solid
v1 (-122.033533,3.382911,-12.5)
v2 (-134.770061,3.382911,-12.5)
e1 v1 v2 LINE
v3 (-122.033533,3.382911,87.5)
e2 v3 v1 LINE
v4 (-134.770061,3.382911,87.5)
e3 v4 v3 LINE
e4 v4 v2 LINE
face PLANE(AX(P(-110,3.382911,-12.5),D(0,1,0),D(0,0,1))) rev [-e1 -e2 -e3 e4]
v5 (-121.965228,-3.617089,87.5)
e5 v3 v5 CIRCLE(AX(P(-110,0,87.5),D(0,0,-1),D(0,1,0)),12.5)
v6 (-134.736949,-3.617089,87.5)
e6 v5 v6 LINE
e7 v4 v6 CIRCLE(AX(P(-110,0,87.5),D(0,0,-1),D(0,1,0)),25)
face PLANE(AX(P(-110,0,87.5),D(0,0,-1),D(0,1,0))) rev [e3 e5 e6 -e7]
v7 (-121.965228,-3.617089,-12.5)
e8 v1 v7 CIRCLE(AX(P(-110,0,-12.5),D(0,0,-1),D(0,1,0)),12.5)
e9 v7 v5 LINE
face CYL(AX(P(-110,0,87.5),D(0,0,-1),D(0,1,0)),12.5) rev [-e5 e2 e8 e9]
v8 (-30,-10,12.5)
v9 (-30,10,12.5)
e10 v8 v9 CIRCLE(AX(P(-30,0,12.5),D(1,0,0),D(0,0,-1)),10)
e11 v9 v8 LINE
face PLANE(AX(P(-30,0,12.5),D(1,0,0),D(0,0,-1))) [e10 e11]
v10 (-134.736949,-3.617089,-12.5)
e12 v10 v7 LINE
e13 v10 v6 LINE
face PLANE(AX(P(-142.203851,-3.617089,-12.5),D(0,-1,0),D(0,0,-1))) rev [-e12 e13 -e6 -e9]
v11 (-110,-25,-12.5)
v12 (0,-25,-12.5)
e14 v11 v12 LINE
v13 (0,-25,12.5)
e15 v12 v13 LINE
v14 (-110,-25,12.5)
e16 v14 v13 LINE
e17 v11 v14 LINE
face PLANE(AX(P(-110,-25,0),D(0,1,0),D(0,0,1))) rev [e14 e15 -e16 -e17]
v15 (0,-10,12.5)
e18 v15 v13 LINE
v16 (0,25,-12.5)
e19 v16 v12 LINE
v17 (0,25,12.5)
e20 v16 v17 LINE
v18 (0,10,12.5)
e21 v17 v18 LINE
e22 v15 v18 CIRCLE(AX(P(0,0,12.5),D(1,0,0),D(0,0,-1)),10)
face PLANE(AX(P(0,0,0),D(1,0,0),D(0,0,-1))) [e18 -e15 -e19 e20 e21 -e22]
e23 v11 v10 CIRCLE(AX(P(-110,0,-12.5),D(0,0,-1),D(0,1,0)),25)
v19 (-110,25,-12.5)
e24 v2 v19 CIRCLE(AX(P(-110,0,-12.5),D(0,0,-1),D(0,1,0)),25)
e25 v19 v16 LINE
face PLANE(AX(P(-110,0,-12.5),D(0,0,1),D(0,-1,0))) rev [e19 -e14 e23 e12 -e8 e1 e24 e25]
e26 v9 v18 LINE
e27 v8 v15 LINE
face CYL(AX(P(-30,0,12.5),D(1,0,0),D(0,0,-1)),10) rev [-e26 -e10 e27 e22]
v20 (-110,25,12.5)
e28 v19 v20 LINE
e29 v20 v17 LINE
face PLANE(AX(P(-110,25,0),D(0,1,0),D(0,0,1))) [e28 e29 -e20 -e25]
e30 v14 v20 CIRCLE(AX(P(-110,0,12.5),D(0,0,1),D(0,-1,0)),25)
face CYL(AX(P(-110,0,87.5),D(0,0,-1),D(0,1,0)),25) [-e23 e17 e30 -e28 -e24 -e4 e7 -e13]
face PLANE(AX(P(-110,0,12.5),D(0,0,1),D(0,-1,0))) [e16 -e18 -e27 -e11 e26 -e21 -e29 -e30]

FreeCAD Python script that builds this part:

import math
import FreeCAD as App
import Part
import Sketcher

V = App.Vector
Q = App.Units.Quantity


def add_polygon(sketch, points):
    """Adds a closed chain of lines whose ends are joined by coincident constraints."""
    first, n = sketch.GeometryCount, len(points)
    for a, b in zip(points, points[1:] + points[:1]):
        sketch.addGeometry(Part.LineSegment(App.Vector(*a, 0), App.Vector(*b, 0)), False)
    for i in range(n):
        sketch.addConstraint(Sketcher.Constraint("Coincident", first + i, 2, first + (i + 1) % n, 1))

doc = App.newDocument("Part")
body = doc.addObject("PartDesign::Body", "Body")

sketch1 = body.newObject("Sketcher::SketchObject", "Sketch")
sketch1.AttachmentSupport = (doc.getObject("YZ_Plane"), [""])
sketch1.MapMode = "FlatFace"
add_polygon(sketch1, [(-25, 12), (-25, -12), (25, -12), (25, 12)])
sketch1.addConstraint(Sketcher.Constraint("Vertical", 0))
sketch1.addConstraint(Sketcher.Constraint("Horizontal", 1))
sketch1.addConstraint(Sketcher.Constraint("Vertical", 2))
sketch1.addConstraint(Sketcher.Constraint("Horizontal", 3))
sketch1.addConstraint(Sketcher.Constraint("Symmetric", 0, 2, 2, 2, -1, 1))
sketch1.addConstraint(Sketcher.Constraint("DistanceX", 1, 1, 1, 2, Q("50 mm")))
sketch1.addConstraint(Sketcher.Constraint("DistanceY", 0, 2, 0, 1, Q("25 mm")))
pad1 = body.newObject("PartDesign::Pad", "Pad")
pad1.Profile = sketch1
pad1.Length = 110
pad1.Reversed = True

sketch2 = body.newObject("Sketcher::SketchObject", "Sketch001")
sketch2.AttachmentSupport = (doc.getObject("YZ_Plane"), [""])
sketch2.MapMode = "FlatFace"
sketch2.addGeometry(Part.LineSegment(V(10, 12, 0), V(-10, 12, 0)), False)
sketch2.addGeometry(Part.ArcOfCircle(Part.Circle(V(0, 12, 0), V(0, 0, 1), 10), math.radians(180), math.radians(360)), False)
sketch2.addConstraint(Sketcher.Constraint("Coincident", 0, 1, 1, 2))
sketch2.addConstraint(Sketcher.Constraint("Coincident", 1, 1, 0, 2))
sketch2.addConstraint(Sketcher.Constraint("Horizontal", 0))
sketch2.addConstraint(Sketcher.Constraint("PointOnObject", 1, 3, -2))
sketch2.addConstraint(Sketcher.Constraint("Horizontal", 1, 3, 0, 1))
sketch2.addConstraint(Sketcher.Constraint("Radius", 1, Q("10 mm")))
sketch2.addConstraint(Sketcher.Constraint("DistanceY", -1, 1, 1, 3, Q("12.5 mm")))
pocket1 = body.newObject("PartDesign::Pocket", "Pocket")
pocket1.Profile = sketch2
pocket1.Type = "TwoLengths"
pocket1.Length = 114.495595
pocket1.Length2 = 30
pocket1.Reversed = True

sketch3 = body.newObject("Sketcher::SketchObject", "Sketch002")
sketch3.AttachmentSupport = (doc.getObject("XY_Plane"), [""])
sketch3.MapMode = "FlatFace"
sketch3.AttachmentOffset = App.Placement(V(0, 0, -12.5), App.Rotation())
sketch3.addGeometry(Part.Circle(V(-110, 0, 0), V(0, 0, 1), 25), False)
sketch3.addGeometry(Part.Circle(V(-110, 0, 0), V(0, 0, 1), 12), False)
sketch3.addConstraint(Sketcher.Constraint("Coincident", 1, 3, 0, 3))
sketch3.addConstraint(Sketcher.Constraint("PointOnObject", 0, 3, -1))
sketch3.addConstraint(Sketcher.Constraint("Diameter", 0, Q("50 mm")))
sketch3.addConstraint(Sketcher.Constraint("Diameter", 1, Q("25 mm")))
sketch3.addConstraint(Sketcher.Constraint("DistanceX", 0, 3, -1, 1, Q("110 mm")))
pad2 = body.newObject("PartDesign::Pad", "Pad001")
pad2.Profile = sketch3
pad2.Length = 100

sketch4 = body.newObject("Sketcher::SketchObject", "Sketch003")
sketch4.AttachmentSupport = (doc.getObject("XY_Plane"), [""])
sketch4.MapMode = "FlatFace"
sketch4.AttachmentOffset = App.Placement(V(0, 0, 87.5), App.Rotation())
add_polygon(sketch4, [(-142, 3), (-142, -4), (-110, -4), (-110, 3)])
sketch4.addConstraint(Sketcher.Constraint("Vertical", 0))
sketch4.addConstraint(Sketcher.Constraint("Horizontal", 1))
sketch4.addConstraint(Sketcher.Constraint("Vertical", 2))
sketch4.addConstraint(Sketcher.Constraint("Horizontal", 3))
sketch4.addConstraint(Sketcher.Constraint("DistanceY", 0, 2, 0, 1, Q("7 mm")))
sketch4.addConstraint(Sketcher.Constraint("DistanceX", 1, 2, -1, 1, Q("110 mm")))
sketch4.addConstraint(Sketcher.Constraint("DistanceX", 1, 1, 1, 2, Q("32.203851 mm")))
sketch4.addConstraint(Sketcher.Constraint("DistanceY", 0, 2, -1, 1, Q("3.617089 mm")))
pocket2 = body.newObject("PartDesign::Pocket", "Pocket001")
pocket2.Profile = sketch4
pocket2.Type = "ThroughAll"
pocket2.Midplane = True

sketch5 = body.newObject("Sketcher::SketchObject", "Sketch004")
sketch5.AttachmentSupport = (doc.getObject("XY_Plane"), [""])
sketch5.MapMode = "FlatFace"
sketch5.AttachmentOffset = App.Placement(V(0, 0, 87.5), App.Rotation())
sketch5.addGeometry(Part.Circle(V(-110, 0, 0), V(0, 0, 1), 12), False)
sketch5.addConstraint(Sketcher.Constraint("PointOnObject", 0, 3, -1))
sketch5.addConstraint(Sketcher.Constraint("Diameter", 0, Q("25 mm")))
sketch5.addConstraint(Sketcher.Constraint("DistanceX", 0, 3, -1, 1, Q("110 mm")))
pocket3 = body.newObject("PartDesign::Pocket", "Pocket002")
pocket3.Profile = sketch5
pocket3.Type = "ThroughAll"
pocket3.Midplane = True

doc.recompute()
